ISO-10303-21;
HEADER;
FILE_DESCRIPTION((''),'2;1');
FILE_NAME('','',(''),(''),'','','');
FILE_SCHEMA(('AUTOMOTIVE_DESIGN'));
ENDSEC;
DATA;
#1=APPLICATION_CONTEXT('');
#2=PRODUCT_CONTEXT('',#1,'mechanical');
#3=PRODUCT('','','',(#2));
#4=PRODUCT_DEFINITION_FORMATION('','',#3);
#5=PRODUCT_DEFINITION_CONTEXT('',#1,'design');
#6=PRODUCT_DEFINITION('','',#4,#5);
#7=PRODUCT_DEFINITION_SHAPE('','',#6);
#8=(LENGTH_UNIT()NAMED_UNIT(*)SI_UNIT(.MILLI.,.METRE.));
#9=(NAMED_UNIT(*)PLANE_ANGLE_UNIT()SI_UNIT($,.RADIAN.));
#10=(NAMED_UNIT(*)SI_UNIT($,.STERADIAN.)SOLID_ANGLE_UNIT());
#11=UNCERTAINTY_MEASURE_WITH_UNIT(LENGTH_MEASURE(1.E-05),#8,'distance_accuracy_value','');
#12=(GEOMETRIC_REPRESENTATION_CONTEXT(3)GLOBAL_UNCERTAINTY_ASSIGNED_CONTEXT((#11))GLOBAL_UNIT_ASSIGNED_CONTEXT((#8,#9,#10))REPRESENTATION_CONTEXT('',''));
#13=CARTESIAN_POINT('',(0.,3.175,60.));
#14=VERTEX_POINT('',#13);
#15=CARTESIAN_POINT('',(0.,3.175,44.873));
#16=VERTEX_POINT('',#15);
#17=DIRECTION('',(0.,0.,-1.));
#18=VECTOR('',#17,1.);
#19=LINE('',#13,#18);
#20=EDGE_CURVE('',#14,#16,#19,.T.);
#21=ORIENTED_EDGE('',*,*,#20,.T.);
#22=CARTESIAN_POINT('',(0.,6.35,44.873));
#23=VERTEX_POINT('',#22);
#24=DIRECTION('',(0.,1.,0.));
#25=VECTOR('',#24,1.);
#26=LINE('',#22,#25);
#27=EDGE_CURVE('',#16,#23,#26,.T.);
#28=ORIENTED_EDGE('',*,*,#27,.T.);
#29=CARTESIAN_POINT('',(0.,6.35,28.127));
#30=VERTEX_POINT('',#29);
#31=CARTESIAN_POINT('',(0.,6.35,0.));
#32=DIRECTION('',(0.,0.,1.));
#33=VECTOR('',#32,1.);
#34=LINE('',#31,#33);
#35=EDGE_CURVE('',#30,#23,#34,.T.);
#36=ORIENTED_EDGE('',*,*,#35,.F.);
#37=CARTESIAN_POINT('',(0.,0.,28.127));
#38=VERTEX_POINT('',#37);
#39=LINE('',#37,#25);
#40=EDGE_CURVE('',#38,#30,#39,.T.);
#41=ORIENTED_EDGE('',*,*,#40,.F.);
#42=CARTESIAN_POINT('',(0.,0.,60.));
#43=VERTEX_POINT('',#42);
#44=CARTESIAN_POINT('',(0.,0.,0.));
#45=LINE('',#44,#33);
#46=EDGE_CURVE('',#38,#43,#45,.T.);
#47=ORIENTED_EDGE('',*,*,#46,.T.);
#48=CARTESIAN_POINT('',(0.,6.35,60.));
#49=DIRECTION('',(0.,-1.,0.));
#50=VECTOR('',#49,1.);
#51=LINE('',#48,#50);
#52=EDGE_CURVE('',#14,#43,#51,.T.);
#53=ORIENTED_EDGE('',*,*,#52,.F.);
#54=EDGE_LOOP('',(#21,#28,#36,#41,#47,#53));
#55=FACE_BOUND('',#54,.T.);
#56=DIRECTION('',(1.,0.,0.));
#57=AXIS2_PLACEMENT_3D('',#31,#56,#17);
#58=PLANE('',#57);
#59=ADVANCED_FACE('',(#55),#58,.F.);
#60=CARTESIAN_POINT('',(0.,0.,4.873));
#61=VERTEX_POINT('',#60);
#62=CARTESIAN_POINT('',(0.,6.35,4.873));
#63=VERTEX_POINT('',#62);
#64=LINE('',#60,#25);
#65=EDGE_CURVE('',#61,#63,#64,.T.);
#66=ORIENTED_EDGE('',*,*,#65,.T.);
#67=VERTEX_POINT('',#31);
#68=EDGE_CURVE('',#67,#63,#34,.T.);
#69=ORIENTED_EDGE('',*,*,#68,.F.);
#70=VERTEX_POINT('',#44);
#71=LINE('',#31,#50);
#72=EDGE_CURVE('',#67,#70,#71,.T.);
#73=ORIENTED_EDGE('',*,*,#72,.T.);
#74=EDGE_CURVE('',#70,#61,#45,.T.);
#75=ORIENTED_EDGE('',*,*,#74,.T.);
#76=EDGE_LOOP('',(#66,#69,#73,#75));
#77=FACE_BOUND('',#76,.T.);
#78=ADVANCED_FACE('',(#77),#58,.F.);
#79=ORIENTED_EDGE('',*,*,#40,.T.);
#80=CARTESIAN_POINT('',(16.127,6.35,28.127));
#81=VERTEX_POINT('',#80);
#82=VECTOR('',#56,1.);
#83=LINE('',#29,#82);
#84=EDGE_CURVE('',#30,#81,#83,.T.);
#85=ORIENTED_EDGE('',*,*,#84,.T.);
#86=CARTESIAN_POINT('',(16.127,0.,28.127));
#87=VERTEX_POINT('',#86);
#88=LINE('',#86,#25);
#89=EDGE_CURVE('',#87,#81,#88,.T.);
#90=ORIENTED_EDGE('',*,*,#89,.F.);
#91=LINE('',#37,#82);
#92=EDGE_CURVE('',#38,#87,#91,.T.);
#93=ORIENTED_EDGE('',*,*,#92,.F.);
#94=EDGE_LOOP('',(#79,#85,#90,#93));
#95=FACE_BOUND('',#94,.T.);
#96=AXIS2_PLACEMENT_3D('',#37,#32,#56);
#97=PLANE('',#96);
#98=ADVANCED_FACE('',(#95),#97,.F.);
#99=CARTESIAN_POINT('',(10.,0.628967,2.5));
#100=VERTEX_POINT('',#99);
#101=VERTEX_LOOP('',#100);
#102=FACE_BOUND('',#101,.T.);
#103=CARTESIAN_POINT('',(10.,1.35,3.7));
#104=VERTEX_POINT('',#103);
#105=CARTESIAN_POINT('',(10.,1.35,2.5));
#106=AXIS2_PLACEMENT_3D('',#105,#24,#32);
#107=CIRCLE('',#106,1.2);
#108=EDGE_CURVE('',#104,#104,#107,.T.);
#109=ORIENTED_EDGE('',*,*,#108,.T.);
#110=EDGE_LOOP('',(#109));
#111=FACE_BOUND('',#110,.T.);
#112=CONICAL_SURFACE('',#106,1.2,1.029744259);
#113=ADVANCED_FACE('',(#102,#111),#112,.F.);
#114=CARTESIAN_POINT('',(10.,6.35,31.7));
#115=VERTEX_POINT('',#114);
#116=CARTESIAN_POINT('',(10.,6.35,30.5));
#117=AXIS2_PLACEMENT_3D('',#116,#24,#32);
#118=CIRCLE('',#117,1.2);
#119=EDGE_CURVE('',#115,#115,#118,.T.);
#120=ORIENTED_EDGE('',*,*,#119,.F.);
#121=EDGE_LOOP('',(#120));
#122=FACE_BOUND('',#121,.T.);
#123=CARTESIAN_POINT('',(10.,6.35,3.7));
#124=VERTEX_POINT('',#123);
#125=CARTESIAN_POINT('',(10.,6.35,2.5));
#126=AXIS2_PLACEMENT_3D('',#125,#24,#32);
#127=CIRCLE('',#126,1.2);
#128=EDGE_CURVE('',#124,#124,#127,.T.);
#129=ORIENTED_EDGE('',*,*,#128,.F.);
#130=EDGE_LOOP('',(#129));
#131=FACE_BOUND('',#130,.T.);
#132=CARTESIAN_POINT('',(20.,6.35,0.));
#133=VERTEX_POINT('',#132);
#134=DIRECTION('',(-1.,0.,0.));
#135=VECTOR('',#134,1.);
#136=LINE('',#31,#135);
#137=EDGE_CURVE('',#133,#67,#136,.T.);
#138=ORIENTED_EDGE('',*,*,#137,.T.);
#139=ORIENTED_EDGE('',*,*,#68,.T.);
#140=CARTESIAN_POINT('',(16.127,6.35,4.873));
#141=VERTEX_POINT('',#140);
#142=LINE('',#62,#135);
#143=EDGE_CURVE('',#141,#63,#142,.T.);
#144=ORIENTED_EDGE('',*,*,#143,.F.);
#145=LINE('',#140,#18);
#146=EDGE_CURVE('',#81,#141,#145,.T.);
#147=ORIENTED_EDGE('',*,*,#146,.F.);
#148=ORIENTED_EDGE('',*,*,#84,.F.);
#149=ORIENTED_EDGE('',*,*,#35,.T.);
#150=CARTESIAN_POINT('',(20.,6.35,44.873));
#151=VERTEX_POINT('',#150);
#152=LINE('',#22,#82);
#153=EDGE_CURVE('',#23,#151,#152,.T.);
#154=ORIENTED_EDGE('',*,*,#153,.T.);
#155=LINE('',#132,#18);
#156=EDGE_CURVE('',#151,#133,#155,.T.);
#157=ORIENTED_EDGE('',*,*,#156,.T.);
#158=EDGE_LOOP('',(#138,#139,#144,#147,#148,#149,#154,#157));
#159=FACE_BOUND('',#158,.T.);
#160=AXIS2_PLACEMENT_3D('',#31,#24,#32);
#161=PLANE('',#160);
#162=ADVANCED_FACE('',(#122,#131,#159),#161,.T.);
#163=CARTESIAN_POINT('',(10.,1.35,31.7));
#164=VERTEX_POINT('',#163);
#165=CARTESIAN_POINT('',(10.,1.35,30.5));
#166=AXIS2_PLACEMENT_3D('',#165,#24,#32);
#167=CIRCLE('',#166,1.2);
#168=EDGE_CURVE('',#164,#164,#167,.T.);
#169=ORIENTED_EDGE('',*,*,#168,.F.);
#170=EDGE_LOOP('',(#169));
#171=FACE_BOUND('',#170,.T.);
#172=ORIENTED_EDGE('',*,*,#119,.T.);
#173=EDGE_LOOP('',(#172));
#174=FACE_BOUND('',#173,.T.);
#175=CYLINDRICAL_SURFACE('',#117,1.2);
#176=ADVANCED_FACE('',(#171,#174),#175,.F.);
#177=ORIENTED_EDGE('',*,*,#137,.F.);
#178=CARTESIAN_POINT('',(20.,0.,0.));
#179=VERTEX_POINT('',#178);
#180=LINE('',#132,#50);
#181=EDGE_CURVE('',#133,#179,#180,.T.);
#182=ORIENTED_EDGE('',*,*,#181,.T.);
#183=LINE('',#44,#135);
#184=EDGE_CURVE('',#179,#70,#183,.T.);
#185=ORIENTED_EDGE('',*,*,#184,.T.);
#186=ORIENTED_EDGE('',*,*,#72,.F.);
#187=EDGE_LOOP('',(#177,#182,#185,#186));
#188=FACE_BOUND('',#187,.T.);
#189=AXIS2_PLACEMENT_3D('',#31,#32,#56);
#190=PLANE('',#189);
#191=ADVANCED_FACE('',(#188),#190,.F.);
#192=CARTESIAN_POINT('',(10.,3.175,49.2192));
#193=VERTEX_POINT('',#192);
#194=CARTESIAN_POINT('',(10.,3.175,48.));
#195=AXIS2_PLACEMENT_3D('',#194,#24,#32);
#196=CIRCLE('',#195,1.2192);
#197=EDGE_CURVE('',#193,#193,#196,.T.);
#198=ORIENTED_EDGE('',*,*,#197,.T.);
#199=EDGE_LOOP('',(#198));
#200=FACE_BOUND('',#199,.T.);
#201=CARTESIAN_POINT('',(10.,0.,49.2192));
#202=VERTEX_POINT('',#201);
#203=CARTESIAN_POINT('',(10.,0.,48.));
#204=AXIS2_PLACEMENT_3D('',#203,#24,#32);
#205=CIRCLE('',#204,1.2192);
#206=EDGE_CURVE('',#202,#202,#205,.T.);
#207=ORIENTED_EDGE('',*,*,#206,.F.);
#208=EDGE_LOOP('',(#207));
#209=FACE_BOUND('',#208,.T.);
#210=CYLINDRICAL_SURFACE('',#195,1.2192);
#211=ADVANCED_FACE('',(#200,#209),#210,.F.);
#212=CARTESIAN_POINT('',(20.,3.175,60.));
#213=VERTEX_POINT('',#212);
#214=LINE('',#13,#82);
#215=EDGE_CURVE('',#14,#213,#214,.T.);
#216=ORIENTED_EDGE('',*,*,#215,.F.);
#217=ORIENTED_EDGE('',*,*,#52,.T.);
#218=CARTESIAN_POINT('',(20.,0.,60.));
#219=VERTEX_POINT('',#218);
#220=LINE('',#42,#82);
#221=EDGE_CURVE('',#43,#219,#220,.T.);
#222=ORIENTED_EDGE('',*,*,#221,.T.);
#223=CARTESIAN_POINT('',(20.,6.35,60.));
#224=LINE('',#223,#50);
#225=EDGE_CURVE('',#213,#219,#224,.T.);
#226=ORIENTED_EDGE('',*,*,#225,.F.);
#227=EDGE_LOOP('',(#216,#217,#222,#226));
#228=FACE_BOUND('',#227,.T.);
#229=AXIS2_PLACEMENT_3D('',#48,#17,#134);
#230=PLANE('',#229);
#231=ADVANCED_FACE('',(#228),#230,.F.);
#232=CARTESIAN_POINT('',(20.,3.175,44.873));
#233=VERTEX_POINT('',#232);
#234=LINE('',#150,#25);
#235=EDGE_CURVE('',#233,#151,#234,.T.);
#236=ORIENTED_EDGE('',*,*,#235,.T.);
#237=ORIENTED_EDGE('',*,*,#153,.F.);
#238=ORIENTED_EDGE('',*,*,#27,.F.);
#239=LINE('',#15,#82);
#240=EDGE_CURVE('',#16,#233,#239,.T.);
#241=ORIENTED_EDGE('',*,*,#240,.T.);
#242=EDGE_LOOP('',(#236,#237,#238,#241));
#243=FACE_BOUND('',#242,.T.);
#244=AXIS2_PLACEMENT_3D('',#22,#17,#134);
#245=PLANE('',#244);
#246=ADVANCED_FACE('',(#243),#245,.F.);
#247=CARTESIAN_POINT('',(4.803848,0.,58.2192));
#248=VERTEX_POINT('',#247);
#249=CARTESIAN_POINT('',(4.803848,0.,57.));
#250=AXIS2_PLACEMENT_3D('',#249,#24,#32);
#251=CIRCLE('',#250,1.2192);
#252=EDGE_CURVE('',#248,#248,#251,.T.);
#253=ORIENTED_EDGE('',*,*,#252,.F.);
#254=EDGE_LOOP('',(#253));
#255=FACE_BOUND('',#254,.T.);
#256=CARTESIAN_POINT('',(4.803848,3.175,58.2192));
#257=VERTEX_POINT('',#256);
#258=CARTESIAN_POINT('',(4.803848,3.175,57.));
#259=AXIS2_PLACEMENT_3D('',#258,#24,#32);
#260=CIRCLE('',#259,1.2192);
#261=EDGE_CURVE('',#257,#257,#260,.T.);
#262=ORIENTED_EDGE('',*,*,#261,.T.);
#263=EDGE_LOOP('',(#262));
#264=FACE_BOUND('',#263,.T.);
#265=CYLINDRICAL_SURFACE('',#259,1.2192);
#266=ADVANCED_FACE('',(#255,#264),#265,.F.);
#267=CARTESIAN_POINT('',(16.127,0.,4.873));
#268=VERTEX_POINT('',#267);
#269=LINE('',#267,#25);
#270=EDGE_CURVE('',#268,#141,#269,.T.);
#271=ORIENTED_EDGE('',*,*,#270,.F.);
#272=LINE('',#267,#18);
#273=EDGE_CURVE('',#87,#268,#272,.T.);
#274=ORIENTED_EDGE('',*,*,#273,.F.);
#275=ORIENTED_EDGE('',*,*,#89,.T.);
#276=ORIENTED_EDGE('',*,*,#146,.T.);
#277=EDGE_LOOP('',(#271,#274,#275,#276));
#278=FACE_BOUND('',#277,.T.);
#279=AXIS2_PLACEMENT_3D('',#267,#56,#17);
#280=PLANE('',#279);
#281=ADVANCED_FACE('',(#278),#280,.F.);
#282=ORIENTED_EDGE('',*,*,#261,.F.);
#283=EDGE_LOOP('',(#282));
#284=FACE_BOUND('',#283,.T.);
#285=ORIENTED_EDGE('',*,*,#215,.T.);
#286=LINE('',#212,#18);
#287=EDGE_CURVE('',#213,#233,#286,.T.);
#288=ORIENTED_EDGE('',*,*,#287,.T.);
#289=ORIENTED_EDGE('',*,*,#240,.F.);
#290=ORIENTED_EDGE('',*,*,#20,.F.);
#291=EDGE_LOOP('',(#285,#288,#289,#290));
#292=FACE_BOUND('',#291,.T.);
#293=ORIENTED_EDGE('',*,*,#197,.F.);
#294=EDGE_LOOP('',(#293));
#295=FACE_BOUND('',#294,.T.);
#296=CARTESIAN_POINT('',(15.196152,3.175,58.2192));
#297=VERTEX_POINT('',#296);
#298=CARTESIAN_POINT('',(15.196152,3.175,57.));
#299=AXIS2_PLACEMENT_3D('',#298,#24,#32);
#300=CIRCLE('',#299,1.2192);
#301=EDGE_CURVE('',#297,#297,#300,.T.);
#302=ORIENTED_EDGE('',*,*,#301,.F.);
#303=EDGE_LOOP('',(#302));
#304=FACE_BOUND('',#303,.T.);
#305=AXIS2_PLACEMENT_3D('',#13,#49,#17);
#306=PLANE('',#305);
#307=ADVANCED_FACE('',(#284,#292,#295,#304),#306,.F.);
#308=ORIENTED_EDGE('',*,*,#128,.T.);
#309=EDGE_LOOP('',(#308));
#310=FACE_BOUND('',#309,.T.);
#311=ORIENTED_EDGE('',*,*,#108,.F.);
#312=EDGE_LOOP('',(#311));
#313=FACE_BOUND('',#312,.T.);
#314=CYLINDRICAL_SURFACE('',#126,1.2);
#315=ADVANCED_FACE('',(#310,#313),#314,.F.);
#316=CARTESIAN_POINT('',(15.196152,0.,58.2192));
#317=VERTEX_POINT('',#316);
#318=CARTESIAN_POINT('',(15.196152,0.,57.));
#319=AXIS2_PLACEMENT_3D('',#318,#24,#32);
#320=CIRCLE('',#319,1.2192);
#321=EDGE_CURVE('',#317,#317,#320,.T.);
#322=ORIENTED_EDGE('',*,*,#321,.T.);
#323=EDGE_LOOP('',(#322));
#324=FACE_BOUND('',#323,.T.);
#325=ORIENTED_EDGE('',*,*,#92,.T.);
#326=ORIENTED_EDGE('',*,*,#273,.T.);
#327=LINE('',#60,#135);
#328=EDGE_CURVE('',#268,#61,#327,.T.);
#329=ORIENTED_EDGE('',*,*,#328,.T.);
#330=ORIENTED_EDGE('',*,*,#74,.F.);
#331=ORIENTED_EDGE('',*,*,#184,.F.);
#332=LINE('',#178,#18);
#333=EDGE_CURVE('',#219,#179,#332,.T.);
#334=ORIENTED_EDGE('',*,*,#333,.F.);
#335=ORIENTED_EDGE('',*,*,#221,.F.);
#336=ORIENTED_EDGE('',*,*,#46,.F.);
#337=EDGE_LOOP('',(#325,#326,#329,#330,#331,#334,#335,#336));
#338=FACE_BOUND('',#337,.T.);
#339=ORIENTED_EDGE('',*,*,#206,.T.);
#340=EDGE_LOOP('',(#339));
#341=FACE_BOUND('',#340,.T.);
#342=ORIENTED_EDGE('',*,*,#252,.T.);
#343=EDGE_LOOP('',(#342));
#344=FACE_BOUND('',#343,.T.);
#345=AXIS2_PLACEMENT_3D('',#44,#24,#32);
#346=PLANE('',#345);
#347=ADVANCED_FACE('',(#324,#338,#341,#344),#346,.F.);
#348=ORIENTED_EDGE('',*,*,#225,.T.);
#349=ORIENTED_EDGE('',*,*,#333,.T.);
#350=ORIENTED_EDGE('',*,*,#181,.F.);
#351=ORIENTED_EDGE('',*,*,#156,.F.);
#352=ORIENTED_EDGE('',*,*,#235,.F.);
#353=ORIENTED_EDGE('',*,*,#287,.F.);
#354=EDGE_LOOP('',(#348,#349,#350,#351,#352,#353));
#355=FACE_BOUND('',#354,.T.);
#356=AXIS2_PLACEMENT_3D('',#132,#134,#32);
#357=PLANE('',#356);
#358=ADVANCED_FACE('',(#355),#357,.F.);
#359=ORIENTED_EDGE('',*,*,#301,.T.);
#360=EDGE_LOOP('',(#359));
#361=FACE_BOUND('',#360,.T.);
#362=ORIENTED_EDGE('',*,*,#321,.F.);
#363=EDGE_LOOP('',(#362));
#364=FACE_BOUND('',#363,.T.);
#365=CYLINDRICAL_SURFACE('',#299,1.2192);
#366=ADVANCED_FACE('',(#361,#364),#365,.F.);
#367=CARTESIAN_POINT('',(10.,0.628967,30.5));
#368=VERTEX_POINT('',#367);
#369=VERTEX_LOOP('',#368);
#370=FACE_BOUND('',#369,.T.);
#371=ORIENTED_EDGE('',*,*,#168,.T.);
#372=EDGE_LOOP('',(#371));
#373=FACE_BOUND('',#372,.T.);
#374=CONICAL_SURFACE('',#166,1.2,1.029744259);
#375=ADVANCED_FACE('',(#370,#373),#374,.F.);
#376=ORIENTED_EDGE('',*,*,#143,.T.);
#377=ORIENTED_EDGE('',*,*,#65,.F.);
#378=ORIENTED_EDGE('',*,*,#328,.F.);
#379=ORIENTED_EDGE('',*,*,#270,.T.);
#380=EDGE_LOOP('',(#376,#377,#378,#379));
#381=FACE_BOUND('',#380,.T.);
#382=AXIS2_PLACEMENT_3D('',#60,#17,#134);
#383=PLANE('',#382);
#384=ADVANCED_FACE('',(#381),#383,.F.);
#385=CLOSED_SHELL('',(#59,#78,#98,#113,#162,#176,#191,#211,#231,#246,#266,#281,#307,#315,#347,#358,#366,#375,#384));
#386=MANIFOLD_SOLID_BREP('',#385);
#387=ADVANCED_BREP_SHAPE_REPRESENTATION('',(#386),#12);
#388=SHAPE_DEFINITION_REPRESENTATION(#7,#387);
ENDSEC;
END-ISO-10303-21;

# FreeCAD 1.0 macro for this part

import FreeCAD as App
import Part
import Sketcher

V = App.Vector

doc = App.newDocument("Part")
body = doc.addObject("PartDesign::Body", "Body")

sketch1 = body.newObject("Sketcher::SketchObject", "Sketch")
sketch1.AttachmentSupport = (doc.getObject("XZ_Plane"), [""])
sketch1.MapMode = "FlatFace"
sketch1.addGeometry([
    Part.LineSegment(V(0, 0, 0), V(0, 60, 0)),
    Part.LineSegment(V(0, 60, 0), V(20, 60, 0)),
    Part.LineSegment(V(20, 60, 0), V(20, 0, 0)),
    Part.LineSegment(V(20, 0, 0), V(0, 0, 0)),
], False)
sketch1.addConstraint([
    Sketcher.Constraint("Coincident", 0, 2, 1, 1),
    Sketcher.Constraint("Coincident", 1, 2, 2, 1),
    Sketcher.Constraint("Coincident", 2, 2, 3, 1),
    Sketcher.Constraint("Coincident", 3, 2, 0, 1),
    Sketcher.Constraint("Vertical", 0),
    Sketcher.Constraint("Horizontal", 1),
    Sketcher.Constraint("Vertical", 2),
    Sketcher.Constraint("Horizontal", 3),
    Sketcher.Constraint("Coincident", 3, 2, -1, 1),
    Sketcher.Constraint("DistanceX", 1, 1, 1, 2, 20.0),
    Sketcher.Constraint("DistanceY", 0, 1, 0, 2, 60.0),
])
pad1 = body.newObject("PartDesign::Pad", "Pad")
pad1.Profile = sketch1
pad1.Length = 6.35
pad1.Reversed = True

sketch2 = body.newObject("Sketcher::SketchObject", "Sketch001")
sketch2.AttachmentSupport = (doc.getObject("XZ_Plane"), [""])
sketch2.MapMode = "FlatFace"
sketch2.AttachmentOffset = App.Placement(V(0, 0, -6.35), App.Rotation())
sketch2.addGeometry([
    Part.LineSegment(V(0, 5, 0), V(0, 28, 0)),
    Part.LineSegment(V(0, 28, 0), V(16, 28, 0)),
    Part.LineSegment(V(16, 28, 0), V(16, 5, 0)),
    Part.LineSegment(V(16, 5, 0), V(0, 5, 0)),
], False)
sketch2.addConstraint([
    Sketcher.Constraint("Coincident", 0, 2, 1, 1),
    Sketcher.Constraint("Coincident", 1, 2, 2, 1),
    Sketcher.Constraint("Coincident", 2, 2, 3, 1),
    Sketcher.Constraint("Coincident", 3, 2, 0, 1),
    Sketcher.Constraint("Vertical", 0),
    Sketcher.Constraint("Horizontal", 1),
    Sketcher.Constraint("Vertical", 2),
    Sketcher.Constraint("Horizontal", 3),
    Sketcher.Constraint("PointOnObject", 0, 2, -2),
    Sketcher.Constraint("DistanceX", 1, 1, 1, 2, 16.127),
    Sketcher.Constraint("DistanceY", 0, 1, 0, 2, 23.254),
    Sketcher.Constraint("DistanceY", -1, 1, 0, 2, 28.127),
])
pocket1 = body.newObject("PartDesign::Pocket", "Pocket")
pocket1.Profile = sketch2
pocket1.Type = "ThroughAll"
pocket1.Reversed = True

sketch3 = body.newObject("Sketcher::SketchObject", "Sketch002")
sketch3.AttachmentSupport = (doc.getObject("XZ_Plane"), [""])
sketch3.MapMode = "FlatFace"
sketch3.AttachmentOffset = App.Placement(V(0, 0, -6.35), App.Rotation())
sketch3.addGeometry([
    Part.Circle(V(10, 30.5, 0), V(0, 0, 1), 1.2),
    Part.Circle(V(10, 2.5, 0), V(0, 0, 1), 1.2),
], False)
sketch3.addConstraint([
    Sketcher.Constraint("Equal", 0, 1),
    Sketcher.Constraint("Vertical", 0, 3, 1, 3),
    Sketcher.Constraint("Diameter", 0, 2.4),
    Sketcher.Constraint("DistanceX", -1, 1, 0, 3, 10.0),
    Sketcher.Constraint("DistanceY", 1, 3, 0, 3, 28.0),
    Sketcher.Constraint("DistanceY", -1, 1, 0, 3, 30.5),
])
doc.recompute()
hole = body.newObject("PartDesign::Hole", "Hole")
hole.Profile = sketch3
hole.ThreadType = "None"
hole.Diameter = 2.4
hole.DepthType = "Dimension"
hole.Depth = 5
hole.DrillPoint = "Angled"
hole.DrillPointAngle = 118
hole.Reversed = True

sketch4 = body.newObject("Sketcher::SketchObject", "Sketch003")
sketch4.AttachmentSupport = (doc.getObject("YZ_Plane"), [""])
sketch4.MapMode = "FlatFace"
sketch4.AttachmentOffset = App.Placement(V(0, 0, 20), App.Rotation())
sketch4.addGeometry([
    Part.LineSegment(V(6.3, 60, 0), V(3.2, 60, 0)),
    Part.LineSegment(V(3.2, 60, 0), V(3.2, 44.9, 0)),
    Part.LineSegment(V(3.2, 44.9, 0), V(6.3, 44.9, 0)),
    Part.LineSegment(V(6.3, 44.9, 0), V(6.3, 60, 0)),
], False)
sketch4.addConstraint([
    Sketcher.Constraint("Coincident", 0, 2, 1, 1),
    Sketcher.Constraint("Coincident", 1, 2, 2, 1),
    Sketcher.Constraint("Coincident", 2, 2, 3, 1),
    Sketcher.Constraint("Coincident", 3, 2, 0, 1),
    Sketcher.Constraint("Horizontal", 0),
    Sketcher.Constraint("Vertical", 1),
    Sketcher.Constraint("Horizontal", 2),
    Sketcher.Constraint("Vertical", 3),
    Sketcher.Constraint("DistanceY", -1, 1, 0, 2, 60.0),
    Sketcher.Constraint("DistanceX", 0, 2, 0, 1, 3.175),
    Sketcher.Constraint("DistanceY", 1, 2, 1, 1, 15.127),
    Sketcher.Constraint("DistanceX", -1, 1, 2, 2, 6.35),
])
pocket2 = body.newObject("PartDesign::Pocket", "Pocket001")
pocket2.Profile = sketch4
pocket2.Type = "ThroughAll"

sketch5 = body.newObject("Sketcher::SketchObject", "Sketch004")
sketch5.AttachmentSupport = (doc.getObject("XZ_Plane"), [""])
sketch5.MapMode = "FlatFace"
sketch5.AttachmentOffset = App.Placement(V(0, 0, -3.175), App.Rotation())
sketch5.addGeometry([
    Part.Circle(V(10, 48, 0), V(0, 0, 1), 1.2),
    Part.Circle(V(4.8, 57, 0), V(0, 0, 1), 1.2),
    Part.Circle(V(15.2, 57, 0), V(0, 0, 1), 1.2),
], False)
sketch5.addConstraint([
    Sketcher.Constraint("Equal", 0, 1),
    Sketcher.Constraint("Equal", 1, 2),
    Sketcher.Constraint("Horizontal", 1, 3, 2, 3),
    Sketcher.Constraint("DistanceX", -1, 1, 0, 3, 10.0),
    Sketcher.Constraint("DistanceY", -1, 1, 0, 3, 48.0),
    Sketcher.Constraint("DistanceY", -1, 1, 1, 3, 57.0),
    Sketcher.Constraint("Diameter", 0, 2.4384),
    Sketcher.Constraint("DistanceX", -1, 1, 1, 3, 4.803848),
    Sketcher.Constraint("DistanceX", -1, 1, 2, 3, 15.196152),
])
doc.recompute()
hole2 = body.newObject("PartDesign::Hole", "Hole001")
hole2.Profile = sketch5
hole2.ThreadType = "None"
hole2.Diameter = 2.4384
hole2.DepthType = "ThroughAll"
hole2.Reversed = True

doc.recompute()
